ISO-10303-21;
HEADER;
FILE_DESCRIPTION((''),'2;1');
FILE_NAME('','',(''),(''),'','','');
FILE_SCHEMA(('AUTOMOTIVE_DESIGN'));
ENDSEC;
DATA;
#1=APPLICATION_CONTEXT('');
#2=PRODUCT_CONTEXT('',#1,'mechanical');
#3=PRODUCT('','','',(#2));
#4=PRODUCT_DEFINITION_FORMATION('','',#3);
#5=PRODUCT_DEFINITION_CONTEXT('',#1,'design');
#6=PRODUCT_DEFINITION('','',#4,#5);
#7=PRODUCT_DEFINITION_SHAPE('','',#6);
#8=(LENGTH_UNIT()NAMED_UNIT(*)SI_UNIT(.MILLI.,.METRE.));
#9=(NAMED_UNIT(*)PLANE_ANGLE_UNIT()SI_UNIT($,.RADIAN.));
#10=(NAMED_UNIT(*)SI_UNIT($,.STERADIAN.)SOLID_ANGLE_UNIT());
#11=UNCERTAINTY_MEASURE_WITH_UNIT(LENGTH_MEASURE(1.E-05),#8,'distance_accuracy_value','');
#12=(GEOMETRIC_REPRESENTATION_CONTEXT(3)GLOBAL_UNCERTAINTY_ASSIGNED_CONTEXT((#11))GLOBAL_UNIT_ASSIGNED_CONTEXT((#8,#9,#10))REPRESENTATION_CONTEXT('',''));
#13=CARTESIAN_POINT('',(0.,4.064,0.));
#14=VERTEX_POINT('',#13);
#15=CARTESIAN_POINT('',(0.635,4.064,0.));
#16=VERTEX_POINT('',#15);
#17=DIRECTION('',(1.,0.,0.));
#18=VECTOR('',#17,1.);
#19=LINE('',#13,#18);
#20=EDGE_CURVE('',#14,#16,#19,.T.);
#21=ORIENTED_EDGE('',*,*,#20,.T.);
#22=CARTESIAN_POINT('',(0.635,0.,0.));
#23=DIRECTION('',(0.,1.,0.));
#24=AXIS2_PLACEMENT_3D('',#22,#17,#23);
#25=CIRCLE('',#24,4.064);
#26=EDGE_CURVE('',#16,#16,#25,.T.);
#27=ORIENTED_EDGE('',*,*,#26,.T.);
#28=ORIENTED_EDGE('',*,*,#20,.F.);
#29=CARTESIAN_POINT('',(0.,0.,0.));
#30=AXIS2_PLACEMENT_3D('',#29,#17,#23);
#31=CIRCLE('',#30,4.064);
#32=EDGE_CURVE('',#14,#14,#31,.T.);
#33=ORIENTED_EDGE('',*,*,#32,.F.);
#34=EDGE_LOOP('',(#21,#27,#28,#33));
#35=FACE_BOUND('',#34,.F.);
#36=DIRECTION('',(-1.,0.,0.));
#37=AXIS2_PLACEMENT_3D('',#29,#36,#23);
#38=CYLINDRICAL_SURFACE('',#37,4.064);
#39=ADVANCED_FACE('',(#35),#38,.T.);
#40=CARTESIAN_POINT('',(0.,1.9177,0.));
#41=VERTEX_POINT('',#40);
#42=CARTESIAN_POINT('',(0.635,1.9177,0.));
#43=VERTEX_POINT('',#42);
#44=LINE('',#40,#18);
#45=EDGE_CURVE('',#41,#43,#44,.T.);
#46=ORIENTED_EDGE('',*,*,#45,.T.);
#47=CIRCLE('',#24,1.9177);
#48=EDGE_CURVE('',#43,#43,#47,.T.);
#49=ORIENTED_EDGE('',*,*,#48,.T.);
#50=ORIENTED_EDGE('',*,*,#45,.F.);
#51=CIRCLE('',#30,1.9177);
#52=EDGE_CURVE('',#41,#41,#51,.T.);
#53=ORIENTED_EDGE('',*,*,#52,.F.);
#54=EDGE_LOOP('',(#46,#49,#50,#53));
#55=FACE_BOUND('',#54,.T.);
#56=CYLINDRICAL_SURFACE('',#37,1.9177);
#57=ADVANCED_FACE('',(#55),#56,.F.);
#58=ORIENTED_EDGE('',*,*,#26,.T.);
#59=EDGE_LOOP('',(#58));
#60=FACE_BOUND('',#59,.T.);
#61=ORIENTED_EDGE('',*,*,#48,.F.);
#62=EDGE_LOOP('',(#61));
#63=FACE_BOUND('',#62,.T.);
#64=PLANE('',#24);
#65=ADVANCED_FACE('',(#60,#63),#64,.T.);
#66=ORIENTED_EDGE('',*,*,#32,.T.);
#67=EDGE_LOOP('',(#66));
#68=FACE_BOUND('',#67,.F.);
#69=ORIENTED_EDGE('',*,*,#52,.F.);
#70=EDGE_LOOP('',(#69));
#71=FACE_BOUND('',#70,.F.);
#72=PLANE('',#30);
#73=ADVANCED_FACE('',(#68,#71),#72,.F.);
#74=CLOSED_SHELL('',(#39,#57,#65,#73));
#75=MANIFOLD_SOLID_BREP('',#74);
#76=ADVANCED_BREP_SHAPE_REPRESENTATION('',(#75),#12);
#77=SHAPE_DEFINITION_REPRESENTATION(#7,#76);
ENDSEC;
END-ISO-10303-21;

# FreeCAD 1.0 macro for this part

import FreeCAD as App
import Part
import Sketcher
Q = App.Units.Quantity

doc = App.newDocument("Part")
params = doc.addObject("Spreadsheet::Sheet", "Params")
for row, (alias, value) in enumerate([
    ("sketch1_diameter", "0.32 in"),
    ("sketch1_diameter2", "0.151 in"),
    ("pad1_length", "0.025 in"),
], start=1):
    params.set(f"A{row}", alias)
    params.set(f"B{row}", "=" + value)
    params.setAlias(f"B{row}", alias)

body = doc.addObject("PartDesign::Body", "Body")

# Sketch on YZ plane
sketch1 = body.newObject("Sketcher::SketchObject", "Sketch")
sketch1.AttachmentSupport = (doc.getObject("YZ_Plane"), [""])
sketch1.MapMode = "FlatFace"
sketch1.addGeometry([
    Part.Circle(App.Vector(0, 0, 0), App.Vector(0, 0, 1), 4.1),
    Part.Circle(App.Vector(0, 0, 0), App.Vector(0, 0, 1), 1.9),
], False)
sketch1.addConstraint([
    Sketcher.Constraint("Coincident", 0, 3, -1, 1),
    Sketcher.Constraint("Coincident", 1, 3, -1, 1),
    Sketcher.Constraint("Diameter", 0, Q("0.32 in")),
    Sketcher.Constraint("Diameter", 1, Q("0.151 in")),
])
sketch1.setExpression("Constraints[2]", "Params.sketch1_diameter")
sketch1.setExpression("Constraints[3]", "Params.sketch1_diameter2")
pad1 = body.newObject("PartDesign::Pad", "Pad")
pad1.Profile = sketch1
pad1.setExpression("Length", "Params.pad1_length")

doc.recompute()
